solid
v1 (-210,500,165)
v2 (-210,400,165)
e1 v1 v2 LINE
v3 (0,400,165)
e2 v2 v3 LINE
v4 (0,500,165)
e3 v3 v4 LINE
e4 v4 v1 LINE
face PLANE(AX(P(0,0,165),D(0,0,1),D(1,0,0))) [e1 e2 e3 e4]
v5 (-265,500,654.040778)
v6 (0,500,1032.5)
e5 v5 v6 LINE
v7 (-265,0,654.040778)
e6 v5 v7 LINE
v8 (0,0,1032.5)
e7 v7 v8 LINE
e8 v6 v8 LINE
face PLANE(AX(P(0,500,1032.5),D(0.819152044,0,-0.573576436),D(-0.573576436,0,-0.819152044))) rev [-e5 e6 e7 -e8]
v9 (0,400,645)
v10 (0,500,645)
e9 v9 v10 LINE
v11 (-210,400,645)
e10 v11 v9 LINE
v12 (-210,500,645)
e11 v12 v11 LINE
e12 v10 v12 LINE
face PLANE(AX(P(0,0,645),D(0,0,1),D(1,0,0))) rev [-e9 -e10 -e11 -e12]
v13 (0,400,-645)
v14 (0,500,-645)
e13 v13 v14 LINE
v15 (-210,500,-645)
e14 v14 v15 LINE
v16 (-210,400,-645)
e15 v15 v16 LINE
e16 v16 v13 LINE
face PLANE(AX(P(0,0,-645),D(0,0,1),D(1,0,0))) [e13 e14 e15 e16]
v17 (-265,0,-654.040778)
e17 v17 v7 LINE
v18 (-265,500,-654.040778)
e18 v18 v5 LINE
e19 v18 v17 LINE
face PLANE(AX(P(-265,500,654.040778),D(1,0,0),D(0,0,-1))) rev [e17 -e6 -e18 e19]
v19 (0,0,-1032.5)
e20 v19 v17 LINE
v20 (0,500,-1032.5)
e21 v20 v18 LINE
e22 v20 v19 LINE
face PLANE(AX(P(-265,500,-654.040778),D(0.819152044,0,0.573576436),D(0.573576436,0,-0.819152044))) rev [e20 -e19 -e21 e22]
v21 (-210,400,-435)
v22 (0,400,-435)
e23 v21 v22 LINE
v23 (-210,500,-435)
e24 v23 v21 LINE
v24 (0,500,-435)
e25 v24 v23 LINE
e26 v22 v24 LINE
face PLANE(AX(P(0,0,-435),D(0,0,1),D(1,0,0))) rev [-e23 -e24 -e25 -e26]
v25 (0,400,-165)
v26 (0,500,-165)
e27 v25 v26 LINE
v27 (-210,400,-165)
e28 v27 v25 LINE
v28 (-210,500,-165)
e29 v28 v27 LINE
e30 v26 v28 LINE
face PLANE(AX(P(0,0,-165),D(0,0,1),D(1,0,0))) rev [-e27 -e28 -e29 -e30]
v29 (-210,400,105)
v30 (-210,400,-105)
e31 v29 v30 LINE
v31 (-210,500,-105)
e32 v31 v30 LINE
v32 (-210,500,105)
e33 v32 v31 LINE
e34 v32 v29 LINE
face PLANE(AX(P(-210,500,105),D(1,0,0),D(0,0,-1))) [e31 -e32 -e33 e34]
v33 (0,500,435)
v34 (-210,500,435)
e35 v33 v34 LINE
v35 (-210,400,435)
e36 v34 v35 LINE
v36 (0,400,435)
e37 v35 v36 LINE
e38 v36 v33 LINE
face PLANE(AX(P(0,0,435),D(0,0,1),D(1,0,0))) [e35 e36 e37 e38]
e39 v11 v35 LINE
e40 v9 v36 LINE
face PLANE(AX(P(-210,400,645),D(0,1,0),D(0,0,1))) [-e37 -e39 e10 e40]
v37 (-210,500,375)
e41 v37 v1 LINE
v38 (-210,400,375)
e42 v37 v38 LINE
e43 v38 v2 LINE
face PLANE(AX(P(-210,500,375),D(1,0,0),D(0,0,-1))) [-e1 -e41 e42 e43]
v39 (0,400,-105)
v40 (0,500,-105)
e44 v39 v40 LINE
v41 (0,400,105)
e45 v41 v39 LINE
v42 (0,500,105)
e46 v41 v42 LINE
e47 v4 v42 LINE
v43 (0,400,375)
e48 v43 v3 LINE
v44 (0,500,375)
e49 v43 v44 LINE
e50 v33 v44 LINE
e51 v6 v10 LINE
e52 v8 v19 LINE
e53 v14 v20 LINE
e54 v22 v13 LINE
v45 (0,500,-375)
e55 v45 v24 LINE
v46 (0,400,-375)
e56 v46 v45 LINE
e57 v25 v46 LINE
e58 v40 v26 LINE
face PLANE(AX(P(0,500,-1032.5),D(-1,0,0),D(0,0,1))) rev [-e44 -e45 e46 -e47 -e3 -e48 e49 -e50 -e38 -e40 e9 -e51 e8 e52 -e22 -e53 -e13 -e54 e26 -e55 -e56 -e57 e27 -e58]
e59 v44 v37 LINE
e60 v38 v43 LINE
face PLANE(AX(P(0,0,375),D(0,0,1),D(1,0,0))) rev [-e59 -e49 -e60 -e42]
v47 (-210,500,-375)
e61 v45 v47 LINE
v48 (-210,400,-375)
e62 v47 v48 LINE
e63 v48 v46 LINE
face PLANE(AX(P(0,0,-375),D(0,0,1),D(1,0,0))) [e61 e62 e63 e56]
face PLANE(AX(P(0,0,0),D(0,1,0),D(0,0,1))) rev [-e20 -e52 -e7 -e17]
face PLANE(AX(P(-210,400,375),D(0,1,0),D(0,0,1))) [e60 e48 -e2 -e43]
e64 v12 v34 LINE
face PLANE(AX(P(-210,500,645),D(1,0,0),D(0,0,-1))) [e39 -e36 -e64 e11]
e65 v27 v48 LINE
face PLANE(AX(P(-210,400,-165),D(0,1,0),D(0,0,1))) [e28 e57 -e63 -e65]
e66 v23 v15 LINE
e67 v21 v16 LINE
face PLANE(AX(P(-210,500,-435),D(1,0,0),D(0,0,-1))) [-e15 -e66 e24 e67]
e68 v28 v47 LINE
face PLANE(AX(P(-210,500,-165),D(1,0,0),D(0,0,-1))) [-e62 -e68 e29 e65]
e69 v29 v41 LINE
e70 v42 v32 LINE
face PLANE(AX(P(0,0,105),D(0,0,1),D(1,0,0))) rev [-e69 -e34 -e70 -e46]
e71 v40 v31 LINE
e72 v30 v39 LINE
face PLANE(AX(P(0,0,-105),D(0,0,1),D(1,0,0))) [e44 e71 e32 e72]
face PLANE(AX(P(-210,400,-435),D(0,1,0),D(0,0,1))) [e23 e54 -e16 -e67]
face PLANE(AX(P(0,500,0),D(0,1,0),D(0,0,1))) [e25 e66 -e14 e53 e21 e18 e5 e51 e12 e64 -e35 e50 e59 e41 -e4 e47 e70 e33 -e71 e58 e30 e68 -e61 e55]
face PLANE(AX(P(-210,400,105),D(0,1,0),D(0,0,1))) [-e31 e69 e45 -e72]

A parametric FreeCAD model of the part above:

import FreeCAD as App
import Part
import Sketcher
from FreeCAD import Vector
Q = App.Units.Quantity


def add_polygon(sketch, points):
    """Adds a closed chain of lines whose ends are joined by coincident constraints."""
    first, n = sketch.GeometryCount, len(points)
    for a, b in zip(points, points[1:] + points[:1]):
        sketch.addGeometry(Part.LineSegment(App.Vector(*a, 0), App.Vector(*b, 0)), False)
    for i in range(n):
        sketch.addConstraint(Sketcher.Constraint("Coincident", first + i, 2, first + (i + 1) % n, 1))

doc = App.newDocument("Part")
body = doc.addObject("PartDesign::Body", "Body")

# Sketch on XZ plane
sketch1 = body.newObject("Sketcher::SketchObject", "Sketch")
sketch1.AttachmentSupport = (doc.getObject("XZ_Plane"), [""])
sketch1.MapMode = "FlatFace"
add_polygon(sketch1, [(0, 1032), (0, -1032), (-265, -654), (-265, 654)])  # lines 0-3
sketch1.addConstraint([
    Sketcher.Constraint("Vertical", 0),
    Sketcher.Constraint("Vertical", 2),
    Sketcher.Constraint("Symmetric", 0, 2, 3, 2, -1, 1),
    Sketcher.Constraint("Equal", 1, 3),
    Sketcher.Constraint("DistanceY", 0, 2, 0, 1, Q("2065 mm")),
    Sketcher.Constraint("Angle", 1, Q("125 deg")),
    Sketcher.Constraint("DistanceX", 1, 2, -1, 1, Q("265 mm")),
])
pad1 = body.newObject("PartDesign::Pad", "Pad")
pad1.Profile = sketch1
pad1.Length = 500
pad1.Reversed = True

# Sketch on XY plane
sketch2 = body.newObject("Sketcher::SketchObject", "Sketch001")
sketch2.AttachmentSupport = (doc.getObject("XY_Plane"), [""])
sketch2.MapMode = "FlatFace"
add_polygon(sketch2, [(-210, 500), (-210, 400), (0, 400), (0, 500)])  # lines 0-3
sketch2.addConstraint([
    Sketcher.Constraint("Vertical", 0),
    Sketcher.Constraint("Horizontal", 1),
    Sketcher.Constraint("Vertical", 2),
    Sketcher.Constraint("Horizontal", 3),
    Sketcher.Constraint("PointOnObject", 1, 2, -2),
    Sketcher.Constraint("DistanceX", 1, 1, 1, 2, Q("210 mm")),
    Sketcher.Constraint("DistanceY", 0, 2, 0, 1, Q("100 mm")),
    Sketcher.Constraint("DistanceY", -1, 1, 0, 2, Q("400 mm")),
])
pocket1 = body.newObject("PartDesign::Pocket", "Pocket")
pocket1.Profile = sketch2
pocket1.Length = 210
pocket1.Midplane = True
doc.recompute()

linearpattern = body.newObject("PartDesign::LinearPattern", "LinearPattern")
linearpattern.Originals = [pocket1]
linearpattern.Direction = (doc.getObject("Z_Axis"), [""])
linearpattern.Mode = "offset"
linearpattern.Offset = 270
linearpattern.Occurrences = 3
body.Tip = linearpattern
doc.recompute()

linearpattern2 = body.newObject("PartDesign::LinearPattern", "LinearPattern001")
linearpattern2.Originals = [pocket1]
linearpattern2.Direction = (doc.getObject("Z_Axis"), [""])
linearpattern2.Mode = "offset"
linearpattern2.Offset = 270
linearpattern2.Occurrences = 3
linearpattern2.Reversed = True
body.Tip = linearpattern2

doc.recompute()
